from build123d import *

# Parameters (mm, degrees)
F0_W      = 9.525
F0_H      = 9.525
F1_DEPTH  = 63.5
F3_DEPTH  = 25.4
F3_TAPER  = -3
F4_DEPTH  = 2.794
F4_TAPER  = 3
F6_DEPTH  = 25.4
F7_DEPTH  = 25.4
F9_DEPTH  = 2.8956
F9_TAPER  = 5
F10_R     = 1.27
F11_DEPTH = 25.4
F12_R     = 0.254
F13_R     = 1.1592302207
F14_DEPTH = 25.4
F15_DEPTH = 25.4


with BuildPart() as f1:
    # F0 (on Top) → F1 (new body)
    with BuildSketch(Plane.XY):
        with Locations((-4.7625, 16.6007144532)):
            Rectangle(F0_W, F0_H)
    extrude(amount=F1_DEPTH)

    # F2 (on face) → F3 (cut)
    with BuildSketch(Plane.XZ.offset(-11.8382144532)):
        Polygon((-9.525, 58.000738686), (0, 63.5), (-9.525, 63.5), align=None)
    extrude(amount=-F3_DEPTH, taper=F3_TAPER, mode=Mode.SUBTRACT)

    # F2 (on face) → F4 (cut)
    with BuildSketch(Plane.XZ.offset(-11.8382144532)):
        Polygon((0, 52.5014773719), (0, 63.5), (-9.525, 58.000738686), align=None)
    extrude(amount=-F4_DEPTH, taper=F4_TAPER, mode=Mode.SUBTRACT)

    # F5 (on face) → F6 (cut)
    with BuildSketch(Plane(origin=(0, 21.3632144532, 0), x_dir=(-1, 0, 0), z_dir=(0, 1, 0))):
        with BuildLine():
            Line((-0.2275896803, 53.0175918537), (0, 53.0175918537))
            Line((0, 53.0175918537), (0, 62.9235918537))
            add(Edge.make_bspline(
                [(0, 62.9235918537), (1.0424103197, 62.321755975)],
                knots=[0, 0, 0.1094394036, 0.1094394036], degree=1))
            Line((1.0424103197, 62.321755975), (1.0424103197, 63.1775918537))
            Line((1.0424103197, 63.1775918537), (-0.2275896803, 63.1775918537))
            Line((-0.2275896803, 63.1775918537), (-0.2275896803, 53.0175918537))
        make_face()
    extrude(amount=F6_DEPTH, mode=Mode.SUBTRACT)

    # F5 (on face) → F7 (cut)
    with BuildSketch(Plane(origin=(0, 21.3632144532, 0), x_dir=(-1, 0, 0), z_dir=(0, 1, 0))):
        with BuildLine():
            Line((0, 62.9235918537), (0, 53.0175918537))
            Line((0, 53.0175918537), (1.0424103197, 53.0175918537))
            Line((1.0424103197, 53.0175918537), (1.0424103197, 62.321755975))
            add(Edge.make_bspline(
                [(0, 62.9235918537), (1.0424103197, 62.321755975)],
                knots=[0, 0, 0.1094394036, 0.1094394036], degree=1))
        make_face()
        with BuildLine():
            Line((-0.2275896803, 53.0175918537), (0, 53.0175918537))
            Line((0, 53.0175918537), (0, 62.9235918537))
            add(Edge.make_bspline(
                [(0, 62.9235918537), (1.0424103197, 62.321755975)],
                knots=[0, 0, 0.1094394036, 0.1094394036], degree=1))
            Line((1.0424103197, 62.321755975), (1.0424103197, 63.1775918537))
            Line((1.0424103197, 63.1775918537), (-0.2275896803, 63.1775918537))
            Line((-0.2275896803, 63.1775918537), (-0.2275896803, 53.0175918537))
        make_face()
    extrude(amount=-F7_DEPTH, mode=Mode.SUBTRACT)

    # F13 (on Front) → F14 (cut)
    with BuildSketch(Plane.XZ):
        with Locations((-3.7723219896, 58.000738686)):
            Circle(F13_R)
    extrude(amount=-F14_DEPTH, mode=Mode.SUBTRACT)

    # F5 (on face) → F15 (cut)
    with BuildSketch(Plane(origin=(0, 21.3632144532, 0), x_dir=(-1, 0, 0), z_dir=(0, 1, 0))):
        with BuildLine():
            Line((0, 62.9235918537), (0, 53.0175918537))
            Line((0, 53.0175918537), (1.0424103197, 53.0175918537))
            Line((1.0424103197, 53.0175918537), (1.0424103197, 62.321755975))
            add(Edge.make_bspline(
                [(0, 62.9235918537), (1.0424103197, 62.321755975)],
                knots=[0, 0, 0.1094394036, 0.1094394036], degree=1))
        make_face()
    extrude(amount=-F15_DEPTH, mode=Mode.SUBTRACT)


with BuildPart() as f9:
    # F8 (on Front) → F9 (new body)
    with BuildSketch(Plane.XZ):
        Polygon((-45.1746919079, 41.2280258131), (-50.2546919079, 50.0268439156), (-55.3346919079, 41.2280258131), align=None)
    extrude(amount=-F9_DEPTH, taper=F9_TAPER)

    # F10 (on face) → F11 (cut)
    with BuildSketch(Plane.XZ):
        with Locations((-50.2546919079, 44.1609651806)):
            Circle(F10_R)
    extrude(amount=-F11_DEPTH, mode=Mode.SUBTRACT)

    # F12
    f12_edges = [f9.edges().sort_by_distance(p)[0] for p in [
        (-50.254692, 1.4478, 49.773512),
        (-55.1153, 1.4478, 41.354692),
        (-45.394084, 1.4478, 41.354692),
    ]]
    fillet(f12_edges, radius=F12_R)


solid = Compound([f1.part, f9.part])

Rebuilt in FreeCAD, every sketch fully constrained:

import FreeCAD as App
import Part
import Sketcher
from FreeCAD import Vector
Q = App.Units.Quantity


def edges_at(feature, points):
    """Names of the edges that pass closest to the given points."""
    edges = feature.Shape.Edges
    near = lambda p: min(range(len(edges)), key=lambda i: edges[i].distToShape(Part.Vertex(*p))[0])
    return sorted({f"Edge{near(p) + 1}" for p in points})


def add_polygon(sketch, points):
    """Adds a closed chain of lines whose ends are joined by coincident constraints."""
    first, n = sketch.GeometryCount, len(points)
    for a, b in zip(points, points[1:] + points[:1]):
        sketch.addGeometry(Part.LineSegment(App.Vector(*a, 0), App.Vector(*b, 0)), False)
    for i in range(n):
        sketch.addConstraint(Sketcher.Constraint("Coincident", first + i, 2, first + (i + 1) % n, 1))

doc = App.newDocument("Part")
body = doc.addObject("PartDesign::Body", "Body")
body.AllowCompound = True

# Sketch on XY plane
sketch1 = body.newObject("Sketcher::SketchObject", "Sketch")
sketch1.AttachmentSupport = (doc.getObject("XY_Plane"), [""])
sketch1.MapMode = "FlatFace"
add_polygon(sketch1, [(-10, 21), (-10, 12), (0, 12), (0, 21)])  # lines 0-3
sketch1.addConstraint([
    Sketcher.Constraint("Vertical", 0),
    Sketcher.Constraint("Horizontal", 1),
    Sketcher.Constraint("Vertical", 2),
    Sketcher.Constraint("Horizontal", 3),
    Sketcher.Constraint("PointOnObject", 1, 2, -2),
    Sketcher.Constraint("Equal", 3, 0),
    Sketcher.Constraint("DistanceX", 1, 1, 1, 2, Q("0.375 in")),
    Sketcher.Constraint("DistanceY", -1, 1, 0, 2, Q("11.838214 mm")),
])
pad1 = body.newObject("PartDesign::Pad", "Pad")
pad1.Profile = sketch1
pad1.Length = Q("2.5 in")

# Sketch on XZ plane
sketch2 = body.newObject("Sketcher::SketchObject", "Sketch001")
sketch2.AttachmentSupport = (doc.getObject("XZ_Plane"), [""])
sketch2.MapMode = "FlatFace"
sketch2.AttachmentOffset = App.Placement(Vector(0, 0, -11.838214), App.Rotation())
add_polygon(sketch2, [(-10, 58), (0, 64), (-10, 64)])  # lines 0-2
sketch2.addConstraint([
    Sketcher.Constraint("Horizontal", 1),
    Sketcher.Constraint("Vertical", 2),
    Sketcher.Constraint("PointOnObject", 0, 2, -2),
    Sketcher.Constraint("Angle", 0, Q("30 deg")),
    Sketcher.Constraint("DistanceY", -1, 1, 0, 2, Q("2.5 in")),
    Sketcher.Constraint("DistanceX", 1, 2, 1, 1, Q("0.375 in")),
])
pocket1 = body.newObject("PartDesign::Pocket", "Pocket")
pocket1.Profile = sketch2
pocket1.Length = Q("1 in")
pocket1.TaperAngle = 3

# Sketch on XZ plane
sketch3 = body.newObject("Sketcher::SketchObject", "Sketch002")
sketch3.AttachmentSupport = (doc.getObject("XZ_Plane"), [""])
sketch3.MapMode = "FlatFace"
sketch3.AttachmentOffset = App.Placement(Vector(0, 0, -11.838214), App.Rotation())
add_polygon(sketch3, [(0, 53), (0, 64), (-10, 58)])  # lines 0-2
sketch3.addConstraint([
    Sketcher.Constraint("Vertical", 0),
    Sketcher.Constraint("PointOnObject", 0, 2, -2),
    Sketcher.Constraint("Equal", 1, 2),
    Sketcher.Constraint("Angle", 1, Q("-150 deg")),
    Sketcher.Constraint("DistanceY", -1, 1, 0, 2, Q("2.5 in")),
    Sketcher.Constraint("DistanceX", 1, 2, -1, 1, Q("0.375 in")),
])
pocket2 = body.newObject("PartDesign::Pocket", "Pocket001")
pocket2.Profile = sketch3
pocket2.Length = Q("0.11 in")
pocket2.TaperAngle = -3

# Sketch on XZ plane
sketch4 = body.newObject("Sketcher::SketchObject", "Sketch003")
sketch4.AttachmentSupport = (doc.getObject("XZ_Plane"), [""])
sketch4.MapMode = "FlatFace"
sketch4.AttachmentOffset = App.Placement(Vector(0, 0, -21.363214), App.Rotation())
sketch4.addGeometry([
    Part.LineSegment(Vector(0.22759, 53.017592, 0), Vector(0, 53.017592, 0)),  # 0
    Part.LineSegment(Vector(0, 53.017592, 0), Vector(0, 62.923592, 0)),  # 1
    Part.BSplineCurve([Vector(0, 62.923592, 0), Vector(-1.04241, 62.321756, 0)], [2, 2], [0, 0.109439404], False, 1, [1, 1], False),  # 2
    Part.LineSegment(Vector(-1.04241, 62.321756, 0), Vector(-1.04241, 63.177592, 0)),  # 3
    Part.LineSegment(Vector(-1.04241, 63.177592, 0), Vector(0.22759, 63.177592, 0)),  # 4
    Part.LineSegment(Vector(0.22759, 63.177592, 0), Vector(0.22759, 53.017592, 0)),  # 5
], False)
sketch4.addConstraint([
    Sketcher.Constraint("Block", 2),
    Sketcher.Constraint("Coincident", 0, 2, 1, 1),
    Sketcher.Constraint("Coincident", 1, 2, 2, 1),
    Sketcher.Constraint("Coincident", 2, 2, 3, 1),
    Sketcher.Constraint("Coincident", 3, 2, 4, 1),
    Sketcher.Constraint("Coincident", 4, 2, 5, 1),
    Sketcher.Constraint("Coincident", 5, 2, 0, 1),
    Sketcher.Constraint("Horizontal", 0),
    Sketcher.Constraint("Vertical", 1),
    Sketcher.Constraint("Vertical", 3),
    Sketcher.Constraint("Horizontal", 4),
    Sketcher.Constraint("Vertical", 5),
    Sketcher.Constraint("DistanceY", 5, 2, 5, 1, Q("0.4 in")),
    Sketcher.Constraint("DistanceX", 4, 1, 4, 2, Q("0.05 in")),
    Sketcher.Constraint("DistanceY", 1, 1, 1, 2, Q("0.39 in")),
])
pocket3 = body.newObject("PartDesign::Pocket", "Pocket002")
pocket3.Profile = sketch4
pocket3.Length = Q("1 in")

# Sketch on XZ plane
sketch5 = body.newObject("Sketcher::SketchObject", "Sketch004")
sketch5.AttachmentSupport = (doc.getObject("XZ_Plane"), [""])
sketch5.MapMode = "FlatFace"
sketch5.AttachmentOffset = App.Placement(Vector(0, 0, -21.363214), App.Rotation())
add_polygon(sketch5, [(-1, 53), (-1, 63.2), (0.2, 63.2), (0.2, 53)])  # lines 0-3
sketch5.addConstraint([
    Sketcher.Constraint("Vertical", 0),
    Sketcher.Constraint("Horizontal", 1),
    Sketcher.Constraint("Vertical", 2),
    Sketcher.Constraint("Horizontal", 3),
    Sketcher.Constraint("DistanceY", 0, 1, 0, 2, Q("0.4 in")),
    Sketcher.Constraint("DistanceX", 1, 1, 1, 2, Q("0.05 in")),
    Sketcher.Constraint("DistanceX", 0, 2, -1, 1, Q("1.04241 mm")),
    Sketcher.Constraint("DistanceY", -1, 1, 0, 2, Q("63.177592 mm")),
])
pocket4 = body.newObject("PartDesign::Pocket", "Pocket003")
pocket4.Profile = sketch5
pocket4.Length = Q("1 in")
pocket4.Reversed = True

# Sketch on XZ plane
sketch6 = body.newObject("Sketcher::SketchObject", "Sketch005")
sketch6.AttachmentSupport = (doc.getObject("XZ_Plane"), [""])
sketch6.MapMode = "FlatFace"
sketch6.addGeometry(Part.Circle(Vector(-3.8, 58, 0), Vector(0, 0, 1), 1.2), False)
sketch6.addConstraint([
    Sketcher.Constraint("Diameter", 0, Q("2.31846 mm")),
    Sketcher.Constraint("DistanceX", 0, 3, -1, 1, Q("3.772322 mm")),
    Sketcher.Constraint("DistanceY", -1, 1, 0, 3, Q("58.000739 mm")),
])
pocket5 = body.newObject("PartDesign::Pocket", "Pocket004")
pocket5.Profile = sketch6
pocket5.Length = Q("1 in")

# Sketch on XZ plane
sketch7 = body.newObject("Sketcher::SketchObject", "Sketch006")
sketch7.AttachmentSupport = (doc.getObject("XZ_Plane"), [""])
sketch7.MapMode = "FlatFace"
sketch7.AttachmentOffset = App.Placement(Vector(0, 0, -21.363214), App.Rotation())
sketch7.addGeometry([
    Part.LineSegment(Vector(0, 62.923592, 0), Vector(0, 53.017592, 0)),
    Part.LineSegment(Vector(0, 53.017592, 0), Vector(-1.04241, 53.017592, 0)),
    Part.LineSegment(Vector(-1.04241, 53.017592, 0), Vector(-1.04241, 62.321756, 0)),
    Part.BSplineCurve([Vector(0, 62.923592, 0), Vector(-1.04241, 62.321756, 0)], [2, 2], [0, 0.109439404], False, 1, [1, 1], False),
], False)
sketch7.addConstraint([
    Sketcher.Constraint("Block", 3),
    Sketcher.Constraint("Coincident", 0, 2, 1, 1),
    Sketcher.Constraint("Coincident", 1, 2, 2, 1),
    Sketcher.Constraint("Coincident", 2, 2, 3, 2),
    Sketcher.Constraint("Coincident", 3, 1, 0, 1),
    Sketcher.Constraint("Vertical", 0),
    Sketcher.Constraint("Horizontal", 1),
    Sketcher.Constraint("Vertical", 2),
    Sketcher.Constraint("DistanceY", 0, 2, 0, 1, Q("0.39 in")),
])
pocket6 = body.newObject("PartDesign::Pocket", "Pocket005")
pocket6.Profile = sketch7
pocket6.Length = Q("1 in")
pocket6.Reversed = True
body2 = doc.addObject("PartDesign::Body", "Body001")

# Sketch on XZ plane
sketch8 = body2.newObject("Sketcher::SketchObject", "Sketch007")
sketch8.AttachmentSupport = (doc.getObject("XZ_Plane001"), [""])
sketch8.MapMode = "FlatFace"
add_polygon(sketch8, [(-45, 41), (-50, 50), (-55, 41)])  # lines 0-2
sketch8.addConstraint([
    Sketcher.Constraint("Horizontal", 2),
    Sketcher.Constraint("Equal", 0, 1),
    Sketcher.Constraint("DistanceX", 2, 1, 2, 2, Q("0.4 in")),
    Sketcher.Constraint("Angle", 0, Q("120 deg")),
    Sketcher.Constraint("DistanceX", 0, 2, -1, 1, Q("50.254692 mm")),
    Sketcher.Constraint("DistanceY", -1, 1, 0, 2, Q("50.026844 mm")),
])
pad2 = body2.newObject("PartDesign::Pad", "Pad001")
pad2.Profile = sketch8
pad2.Length = Q("0.114 in")
pad2.Reversed = True
pad2.TaperAngle = -5

# Sketch on XZ plane
sketch9 = body2.newObject("Sketcher::SketchObject", "Sketch008")
sketch9.AttachmentSupport = (doc.getObject("XZ_Plane001"), [""])
sketch9.MapMode = "FlatFace"
sketch9.addGeometry(Part.Circle(Vector(-50.3, 44.2, 0), Vector(0, 0, 1), 1.3), False)
sketch9.addConstraint([
    Sketcher.Constraint("Diameter", 0, Q("0.1 in")),
    Sketcher.Constraint("DistanceX", 0, 3, -1, 1, Q("50.254692 mm")),
    Sketcher.Constraint("DistanceY", -1, 1, 0, 3, Q("44.160965 mm")),
])
pocket7 = body2.newObject("PartDesign::Pocket", "Pocket006")
pocket7.Profile = sketch9
pocket7.Length = Q("1 in")
doc.recompute()

fillet = body2.newObject("PartDesign::Fillet", "Fillet")
fillet.Base = (pocket7, edges_at(pocket7, [(-50.255, 1.448, 49.774), (-55.115, 1.448, 41.355), (-45.394, 1.448, 41.355)]))
fillet.Radius = Q("0.01 in")

doc.recompute()
